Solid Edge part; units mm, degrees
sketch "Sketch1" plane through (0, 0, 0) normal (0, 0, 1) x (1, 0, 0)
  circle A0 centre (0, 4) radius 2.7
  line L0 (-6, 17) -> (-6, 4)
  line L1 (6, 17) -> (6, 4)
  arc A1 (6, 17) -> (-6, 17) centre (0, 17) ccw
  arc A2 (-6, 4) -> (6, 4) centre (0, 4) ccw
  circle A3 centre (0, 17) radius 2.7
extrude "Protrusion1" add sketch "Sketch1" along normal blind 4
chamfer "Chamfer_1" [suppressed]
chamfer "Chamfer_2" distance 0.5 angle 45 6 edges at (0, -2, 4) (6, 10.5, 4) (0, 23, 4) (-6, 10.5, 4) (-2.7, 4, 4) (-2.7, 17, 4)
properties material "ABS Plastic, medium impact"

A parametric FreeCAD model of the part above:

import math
import FreeCAD as App
import Part
import Sketcher


def edges_at(feature, points):
    """Names of the edges that pass closest to the given points."""
    edges = feature.Shape.Edges
    near = lambda p: min(range(len(edges)), key=lambda i: edges[i].distToShape(Part.Vertex(*p))[0])
    return sorted({f"Edge{near(p) + 1}" for p in points})

doc = App.newDocument("Part")
body = doc.addObject("PartDesign::Body", "Body")

sketch1 = body.newObject("Sketcher::SketchObject", "Sketch")
sketch1.AttachmentSupport = (doc.getObject("XY_Plane"), [""])
sketch1.MapMode = "FlatFace"
sketch1.addGeometry([
    Part.ArcOfCircle(Part.Circle(App.Vector(0, 17, 0), App.Vector(0, 0, 1), 6), math.radians(0), math.radians(180)),
    Part.LineSegment(App.Vector(-6, 17, 0), App.Vector(-6, 4, 0)),
    Part.ArcOfCircle(Part.Circle(App.Vector(0, 4, 0), App.Vector(0, 0, 1), 6), math.radians(180), math.radians(360)),
    Part.LineSegment(App.Vector(6, 4, 0), App.Vector(6, 17, 0)),
    Part.Circle(App.Vector(0, 4, 0), App.Vector(0, 0, 1), 2.7),
    Part.Circle(App.Vector(0, 17, 0), App.Vector(0, 0, 1), 2.7),
], False)
sketch1.addConstraint([
    Sketcher.Constraint("Tangent", 0, 2, 1, 1),
    Sketcher.Constraint("Tangent", 1, 2, 2, 1),
    Sketcher.Constraint("Tangent", 2, 2, 3, 1),
    Sketcher.Constraint("Tangent", 3, 2, 0, 1),
    Sketcher.Constraint("Vertical", 1),
    Sketcher.Constraint("Vertical", 3),
    Sketcher.Constraint("Coincident", 4, 3, 2, 3),
    Sketcher.Constraint("Coincident", 5, 3, 0, 3),
    Sketcher.Constraint("Equal", 4, 5),
    Sketcher.Constraint("PointOnObject", 0, 3, -2),
    Sketcher.Constraint("Radius", 0, 6.0),
    Sketcher.Constraint("Diameter", 4, 5.4),
    Sketcher.Constraint("DistanceY", 1, 2, 1, 1, 13.0),
    Sketcher.Constraint("DistanceY", -1, 1, 0, 3, 17.0),
])
pad1 = body.newObject("PartDesign::Pad", "Pad")
pad1.Profile = sketch1
pad1.Length = 4
doc.recompute()

chamfer = body.newObject("PartDesign::Chamfer", "Chamfer")
chamfer.Base = (pad1, edges_at(pad1, [
    (0, -2, 4),
    (6, 10.5, 4),
    (0, 23, 4),
    (-6, 10.5, 4),
    (-2.7, 4, 4),
    (-2.7, 17, 4),
]))
chamfer.Size = 0.5

doc.recompute()
